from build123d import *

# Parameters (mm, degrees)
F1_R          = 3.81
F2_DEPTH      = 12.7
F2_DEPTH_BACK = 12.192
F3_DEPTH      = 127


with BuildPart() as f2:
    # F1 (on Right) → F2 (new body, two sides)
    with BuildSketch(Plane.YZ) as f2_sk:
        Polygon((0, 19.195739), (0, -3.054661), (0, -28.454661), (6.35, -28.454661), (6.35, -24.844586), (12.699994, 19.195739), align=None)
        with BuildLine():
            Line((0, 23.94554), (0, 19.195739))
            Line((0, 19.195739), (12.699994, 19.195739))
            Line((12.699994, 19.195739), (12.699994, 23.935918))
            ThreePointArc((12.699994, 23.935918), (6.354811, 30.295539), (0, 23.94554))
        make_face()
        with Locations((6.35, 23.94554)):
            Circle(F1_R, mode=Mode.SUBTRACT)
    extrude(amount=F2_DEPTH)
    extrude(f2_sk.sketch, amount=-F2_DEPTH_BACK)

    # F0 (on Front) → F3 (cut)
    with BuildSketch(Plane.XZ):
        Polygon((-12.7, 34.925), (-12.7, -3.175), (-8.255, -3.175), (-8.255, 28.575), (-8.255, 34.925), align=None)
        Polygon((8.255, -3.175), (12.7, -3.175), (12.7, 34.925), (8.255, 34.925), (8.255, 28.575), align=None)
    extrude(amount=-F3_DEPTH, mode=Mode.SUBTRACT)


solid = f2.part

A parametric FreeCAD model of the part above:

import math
import FreeCAD as App
import Part
import Sketcher
from FreeCAD import Vector
Q = App.Units.Quantity

doc = App.newDocument("Part")
body = doc.addObject("PartDesign::Body", "Body")

sketch1 = body.newObject("Sketcher::SketchObject", "Sketch")
sketch1.AttachmentSupport = (doc.getObject("YZ_Plane"), [""])
sketch1.MapMode = "FlatFace"
sketch1.addGeometry([
    Part.LineSegment(Vector(0, -28.5, 0), Vector(6.3, -28.5, 0)),
    Part.LineSegment(Vector(6.3, -28.5, 0), Vector(6.3, -24.8, 0)),
    Part.LineSegment(Vector(6.3, -24.8, 0), Vector(12.7, 19.2, 0)),
    Part.LineSegment(Vector(12.7, 19.2, 0), Vector(12.7, 23.9, 0)),
    Part.ArcOfCircle(Part.Circle(Vector(6.4, 23.9, 0), Vector(0, 0, 1), 6.4), math.radians(0), math.radians(180)),
    Part.LineSegment(Vector(0, 23.9, 0), Vector(0, -28.5, 0)),
    Part.Circle(Vector(6.3, 23.9, 0), Vector(0, 0, 1), 3.8),
], False)
sketch1.addConstraint([
    Sketcher.Constraint("Coincident", 0, 2, 1, 1),
    Sketcher.Constraint("Coincident", 1, 2, 2, 1),
    Sketcher.Constraint("Coincident", 2, 2, 3, 1),
    Sketcher.Constraint("Coincident", 3, 2, 4, 1),
    Sketcher.Constraint("Tangent", 4, 2, 5, 1),
    Sketcher.Constraint("Coincident", 5, 2, 0, 1),
    Sketcher.Constraint("Horizontal", 0),
    Sketcher.Constraint("Vertical", 1),
    Sketcher.Constraint("Vertical", 3),
    Sketcher.Constraint("Vertical", 5),
    Sketcher.Constraint("Coincident", 6, 3, 4, 3),
    Sketcher.Constraint("PointOnObject", 4, 2, -2),
    Sketcher.Constraint("Vertical", 6, 3, 0, 2),
    Sketcher.Constraint("Diameter", 6, Q("0.3 in")),
    Sketcher.Constraint("Radius", 4, Q("0.25 in")),
    Sketcher.Constraint("DistanceY", 5, 2, 5, 1, Q("2.063 in")),
    Sketcher.Constraint("DistanceY", 2, 2, 4, 3, Q("0.187 in")),
    Sketcher.Constraint("DistanceY", 3, 1, 3, 2, Q("4.740179 mm")),
    Sketcher.Constraint("Distance", 2, Q("44.49576 mm")),
    Sketcher.Constraint("DistanceY", -1, 1, 4, 3, Q("23.94554 mm")),
])
pad1 = body.newObject("PartDesign::Pad", "Pad")
pad1.Profile = sketch1
pad1.Type = "TwoLengths"
pad1.Length = Q("0.5 in")
pad1.Length2 = Q("0.48 in")

sketch2 = body.newObject("Sketcher::SketchObject", "Sketch001")
sketch2.AttachmentSupport = (doc.getObject("XZ_Plane"), [""])
sketch2.MapMode = "FlatFace"
sketch2.addGeometry([
    Part.LineSegment(Vector(-12.7, 34.9, 0), Vector(-12.7, -3.2, 0)),
    Part.LineSegment(Vector(-12.7, -3.2, 0), Vector(-8.3, -3.2, 0)),
    Part.LineSegment(Vector(-8.3, -3.2, 0), Vector(-8.3, 34.9, 0)),
    Part.LineSegment(Vector(-8.3, 34.9, 0), Vector(-12.7, 34.9, 0)),
    Part.LineSegment(Vector(8.3, -3.2, 0), Vector(12.7, -3.2, 0)),
    Part.LineSegment(Vector(12.7, -3.2, 0), Vector(12.7, 34.9, 0)),
    Part.LineSegment(Vector(12.7, 34.9, 0), Vector(8.3, 34.9, 0)),
    Part.LineSegment(Vector(8.3, 34.9, 0), Vector(8.3, -3.2, 0)),
], False)
sketch2.addConstraint([
    Sketcher.Constraint("Coincident", 0, 2, 1, 1),
    Sketcher.Constraint("Coincident", 1, 2, 2, 1),
    Sketcher.Constraint("Coincident", 2, 2, 3, 1),
    Sketcher.Constraint("Coincident", 3, 2, 0, 1),
    Sketcher.Constraint("Coincident", 4, 2, 5, 1),
    Sketcher.Constraint("Coincident", 5, 2, 6, 1),
    Sketcher.Constraint("Coincident", 6, 2, 7, 1),
    Sketcher.Constraint("Coincident", 7, 2, 4, 1),
    Sketcher.Constraint("Vertical", 0),
    Sketcher.Constraint("Horizontal", 1),
    Sketcher.Constraint("Vertical", 2),
    Sketcher.Constraint("Horizontal", 3),
    Sketcher.Constraint("Horizontal", 4),
    Sketcher.Constraint("Vertical", 5),
    Sketcher.Constraint("Horizontal", 6),
    Sketcher.Constraint("Vertical", 7),
    Sketcher.Constraint("Symmetric", 0, 2, 4, 2, -2),
    Sketcher.Constraint("Symmetric", 2, 2, 6, 2, -2),
    Sketcher.Constraint("DistanceY", 0, 2, 0, 1, Q("1.5 in")),
    Sketcher.Constraint("DistanceX", 0, 2, 4, 2, Q("1 in")),
    Sketcher.Constraint("DistanceX", 1, 1, 1, 2, Q("0.175 in")),
    Sketcher.Constraint("DistanceY", 0, 2, -1, 1, Q("0.125 in")),
])
pocket1 = body.newObject("PartDesign::Pocket", "Pocket")
pocket1.Profile = sketch2
pocket1.Length = Q("5 in")

doc.recompute()
